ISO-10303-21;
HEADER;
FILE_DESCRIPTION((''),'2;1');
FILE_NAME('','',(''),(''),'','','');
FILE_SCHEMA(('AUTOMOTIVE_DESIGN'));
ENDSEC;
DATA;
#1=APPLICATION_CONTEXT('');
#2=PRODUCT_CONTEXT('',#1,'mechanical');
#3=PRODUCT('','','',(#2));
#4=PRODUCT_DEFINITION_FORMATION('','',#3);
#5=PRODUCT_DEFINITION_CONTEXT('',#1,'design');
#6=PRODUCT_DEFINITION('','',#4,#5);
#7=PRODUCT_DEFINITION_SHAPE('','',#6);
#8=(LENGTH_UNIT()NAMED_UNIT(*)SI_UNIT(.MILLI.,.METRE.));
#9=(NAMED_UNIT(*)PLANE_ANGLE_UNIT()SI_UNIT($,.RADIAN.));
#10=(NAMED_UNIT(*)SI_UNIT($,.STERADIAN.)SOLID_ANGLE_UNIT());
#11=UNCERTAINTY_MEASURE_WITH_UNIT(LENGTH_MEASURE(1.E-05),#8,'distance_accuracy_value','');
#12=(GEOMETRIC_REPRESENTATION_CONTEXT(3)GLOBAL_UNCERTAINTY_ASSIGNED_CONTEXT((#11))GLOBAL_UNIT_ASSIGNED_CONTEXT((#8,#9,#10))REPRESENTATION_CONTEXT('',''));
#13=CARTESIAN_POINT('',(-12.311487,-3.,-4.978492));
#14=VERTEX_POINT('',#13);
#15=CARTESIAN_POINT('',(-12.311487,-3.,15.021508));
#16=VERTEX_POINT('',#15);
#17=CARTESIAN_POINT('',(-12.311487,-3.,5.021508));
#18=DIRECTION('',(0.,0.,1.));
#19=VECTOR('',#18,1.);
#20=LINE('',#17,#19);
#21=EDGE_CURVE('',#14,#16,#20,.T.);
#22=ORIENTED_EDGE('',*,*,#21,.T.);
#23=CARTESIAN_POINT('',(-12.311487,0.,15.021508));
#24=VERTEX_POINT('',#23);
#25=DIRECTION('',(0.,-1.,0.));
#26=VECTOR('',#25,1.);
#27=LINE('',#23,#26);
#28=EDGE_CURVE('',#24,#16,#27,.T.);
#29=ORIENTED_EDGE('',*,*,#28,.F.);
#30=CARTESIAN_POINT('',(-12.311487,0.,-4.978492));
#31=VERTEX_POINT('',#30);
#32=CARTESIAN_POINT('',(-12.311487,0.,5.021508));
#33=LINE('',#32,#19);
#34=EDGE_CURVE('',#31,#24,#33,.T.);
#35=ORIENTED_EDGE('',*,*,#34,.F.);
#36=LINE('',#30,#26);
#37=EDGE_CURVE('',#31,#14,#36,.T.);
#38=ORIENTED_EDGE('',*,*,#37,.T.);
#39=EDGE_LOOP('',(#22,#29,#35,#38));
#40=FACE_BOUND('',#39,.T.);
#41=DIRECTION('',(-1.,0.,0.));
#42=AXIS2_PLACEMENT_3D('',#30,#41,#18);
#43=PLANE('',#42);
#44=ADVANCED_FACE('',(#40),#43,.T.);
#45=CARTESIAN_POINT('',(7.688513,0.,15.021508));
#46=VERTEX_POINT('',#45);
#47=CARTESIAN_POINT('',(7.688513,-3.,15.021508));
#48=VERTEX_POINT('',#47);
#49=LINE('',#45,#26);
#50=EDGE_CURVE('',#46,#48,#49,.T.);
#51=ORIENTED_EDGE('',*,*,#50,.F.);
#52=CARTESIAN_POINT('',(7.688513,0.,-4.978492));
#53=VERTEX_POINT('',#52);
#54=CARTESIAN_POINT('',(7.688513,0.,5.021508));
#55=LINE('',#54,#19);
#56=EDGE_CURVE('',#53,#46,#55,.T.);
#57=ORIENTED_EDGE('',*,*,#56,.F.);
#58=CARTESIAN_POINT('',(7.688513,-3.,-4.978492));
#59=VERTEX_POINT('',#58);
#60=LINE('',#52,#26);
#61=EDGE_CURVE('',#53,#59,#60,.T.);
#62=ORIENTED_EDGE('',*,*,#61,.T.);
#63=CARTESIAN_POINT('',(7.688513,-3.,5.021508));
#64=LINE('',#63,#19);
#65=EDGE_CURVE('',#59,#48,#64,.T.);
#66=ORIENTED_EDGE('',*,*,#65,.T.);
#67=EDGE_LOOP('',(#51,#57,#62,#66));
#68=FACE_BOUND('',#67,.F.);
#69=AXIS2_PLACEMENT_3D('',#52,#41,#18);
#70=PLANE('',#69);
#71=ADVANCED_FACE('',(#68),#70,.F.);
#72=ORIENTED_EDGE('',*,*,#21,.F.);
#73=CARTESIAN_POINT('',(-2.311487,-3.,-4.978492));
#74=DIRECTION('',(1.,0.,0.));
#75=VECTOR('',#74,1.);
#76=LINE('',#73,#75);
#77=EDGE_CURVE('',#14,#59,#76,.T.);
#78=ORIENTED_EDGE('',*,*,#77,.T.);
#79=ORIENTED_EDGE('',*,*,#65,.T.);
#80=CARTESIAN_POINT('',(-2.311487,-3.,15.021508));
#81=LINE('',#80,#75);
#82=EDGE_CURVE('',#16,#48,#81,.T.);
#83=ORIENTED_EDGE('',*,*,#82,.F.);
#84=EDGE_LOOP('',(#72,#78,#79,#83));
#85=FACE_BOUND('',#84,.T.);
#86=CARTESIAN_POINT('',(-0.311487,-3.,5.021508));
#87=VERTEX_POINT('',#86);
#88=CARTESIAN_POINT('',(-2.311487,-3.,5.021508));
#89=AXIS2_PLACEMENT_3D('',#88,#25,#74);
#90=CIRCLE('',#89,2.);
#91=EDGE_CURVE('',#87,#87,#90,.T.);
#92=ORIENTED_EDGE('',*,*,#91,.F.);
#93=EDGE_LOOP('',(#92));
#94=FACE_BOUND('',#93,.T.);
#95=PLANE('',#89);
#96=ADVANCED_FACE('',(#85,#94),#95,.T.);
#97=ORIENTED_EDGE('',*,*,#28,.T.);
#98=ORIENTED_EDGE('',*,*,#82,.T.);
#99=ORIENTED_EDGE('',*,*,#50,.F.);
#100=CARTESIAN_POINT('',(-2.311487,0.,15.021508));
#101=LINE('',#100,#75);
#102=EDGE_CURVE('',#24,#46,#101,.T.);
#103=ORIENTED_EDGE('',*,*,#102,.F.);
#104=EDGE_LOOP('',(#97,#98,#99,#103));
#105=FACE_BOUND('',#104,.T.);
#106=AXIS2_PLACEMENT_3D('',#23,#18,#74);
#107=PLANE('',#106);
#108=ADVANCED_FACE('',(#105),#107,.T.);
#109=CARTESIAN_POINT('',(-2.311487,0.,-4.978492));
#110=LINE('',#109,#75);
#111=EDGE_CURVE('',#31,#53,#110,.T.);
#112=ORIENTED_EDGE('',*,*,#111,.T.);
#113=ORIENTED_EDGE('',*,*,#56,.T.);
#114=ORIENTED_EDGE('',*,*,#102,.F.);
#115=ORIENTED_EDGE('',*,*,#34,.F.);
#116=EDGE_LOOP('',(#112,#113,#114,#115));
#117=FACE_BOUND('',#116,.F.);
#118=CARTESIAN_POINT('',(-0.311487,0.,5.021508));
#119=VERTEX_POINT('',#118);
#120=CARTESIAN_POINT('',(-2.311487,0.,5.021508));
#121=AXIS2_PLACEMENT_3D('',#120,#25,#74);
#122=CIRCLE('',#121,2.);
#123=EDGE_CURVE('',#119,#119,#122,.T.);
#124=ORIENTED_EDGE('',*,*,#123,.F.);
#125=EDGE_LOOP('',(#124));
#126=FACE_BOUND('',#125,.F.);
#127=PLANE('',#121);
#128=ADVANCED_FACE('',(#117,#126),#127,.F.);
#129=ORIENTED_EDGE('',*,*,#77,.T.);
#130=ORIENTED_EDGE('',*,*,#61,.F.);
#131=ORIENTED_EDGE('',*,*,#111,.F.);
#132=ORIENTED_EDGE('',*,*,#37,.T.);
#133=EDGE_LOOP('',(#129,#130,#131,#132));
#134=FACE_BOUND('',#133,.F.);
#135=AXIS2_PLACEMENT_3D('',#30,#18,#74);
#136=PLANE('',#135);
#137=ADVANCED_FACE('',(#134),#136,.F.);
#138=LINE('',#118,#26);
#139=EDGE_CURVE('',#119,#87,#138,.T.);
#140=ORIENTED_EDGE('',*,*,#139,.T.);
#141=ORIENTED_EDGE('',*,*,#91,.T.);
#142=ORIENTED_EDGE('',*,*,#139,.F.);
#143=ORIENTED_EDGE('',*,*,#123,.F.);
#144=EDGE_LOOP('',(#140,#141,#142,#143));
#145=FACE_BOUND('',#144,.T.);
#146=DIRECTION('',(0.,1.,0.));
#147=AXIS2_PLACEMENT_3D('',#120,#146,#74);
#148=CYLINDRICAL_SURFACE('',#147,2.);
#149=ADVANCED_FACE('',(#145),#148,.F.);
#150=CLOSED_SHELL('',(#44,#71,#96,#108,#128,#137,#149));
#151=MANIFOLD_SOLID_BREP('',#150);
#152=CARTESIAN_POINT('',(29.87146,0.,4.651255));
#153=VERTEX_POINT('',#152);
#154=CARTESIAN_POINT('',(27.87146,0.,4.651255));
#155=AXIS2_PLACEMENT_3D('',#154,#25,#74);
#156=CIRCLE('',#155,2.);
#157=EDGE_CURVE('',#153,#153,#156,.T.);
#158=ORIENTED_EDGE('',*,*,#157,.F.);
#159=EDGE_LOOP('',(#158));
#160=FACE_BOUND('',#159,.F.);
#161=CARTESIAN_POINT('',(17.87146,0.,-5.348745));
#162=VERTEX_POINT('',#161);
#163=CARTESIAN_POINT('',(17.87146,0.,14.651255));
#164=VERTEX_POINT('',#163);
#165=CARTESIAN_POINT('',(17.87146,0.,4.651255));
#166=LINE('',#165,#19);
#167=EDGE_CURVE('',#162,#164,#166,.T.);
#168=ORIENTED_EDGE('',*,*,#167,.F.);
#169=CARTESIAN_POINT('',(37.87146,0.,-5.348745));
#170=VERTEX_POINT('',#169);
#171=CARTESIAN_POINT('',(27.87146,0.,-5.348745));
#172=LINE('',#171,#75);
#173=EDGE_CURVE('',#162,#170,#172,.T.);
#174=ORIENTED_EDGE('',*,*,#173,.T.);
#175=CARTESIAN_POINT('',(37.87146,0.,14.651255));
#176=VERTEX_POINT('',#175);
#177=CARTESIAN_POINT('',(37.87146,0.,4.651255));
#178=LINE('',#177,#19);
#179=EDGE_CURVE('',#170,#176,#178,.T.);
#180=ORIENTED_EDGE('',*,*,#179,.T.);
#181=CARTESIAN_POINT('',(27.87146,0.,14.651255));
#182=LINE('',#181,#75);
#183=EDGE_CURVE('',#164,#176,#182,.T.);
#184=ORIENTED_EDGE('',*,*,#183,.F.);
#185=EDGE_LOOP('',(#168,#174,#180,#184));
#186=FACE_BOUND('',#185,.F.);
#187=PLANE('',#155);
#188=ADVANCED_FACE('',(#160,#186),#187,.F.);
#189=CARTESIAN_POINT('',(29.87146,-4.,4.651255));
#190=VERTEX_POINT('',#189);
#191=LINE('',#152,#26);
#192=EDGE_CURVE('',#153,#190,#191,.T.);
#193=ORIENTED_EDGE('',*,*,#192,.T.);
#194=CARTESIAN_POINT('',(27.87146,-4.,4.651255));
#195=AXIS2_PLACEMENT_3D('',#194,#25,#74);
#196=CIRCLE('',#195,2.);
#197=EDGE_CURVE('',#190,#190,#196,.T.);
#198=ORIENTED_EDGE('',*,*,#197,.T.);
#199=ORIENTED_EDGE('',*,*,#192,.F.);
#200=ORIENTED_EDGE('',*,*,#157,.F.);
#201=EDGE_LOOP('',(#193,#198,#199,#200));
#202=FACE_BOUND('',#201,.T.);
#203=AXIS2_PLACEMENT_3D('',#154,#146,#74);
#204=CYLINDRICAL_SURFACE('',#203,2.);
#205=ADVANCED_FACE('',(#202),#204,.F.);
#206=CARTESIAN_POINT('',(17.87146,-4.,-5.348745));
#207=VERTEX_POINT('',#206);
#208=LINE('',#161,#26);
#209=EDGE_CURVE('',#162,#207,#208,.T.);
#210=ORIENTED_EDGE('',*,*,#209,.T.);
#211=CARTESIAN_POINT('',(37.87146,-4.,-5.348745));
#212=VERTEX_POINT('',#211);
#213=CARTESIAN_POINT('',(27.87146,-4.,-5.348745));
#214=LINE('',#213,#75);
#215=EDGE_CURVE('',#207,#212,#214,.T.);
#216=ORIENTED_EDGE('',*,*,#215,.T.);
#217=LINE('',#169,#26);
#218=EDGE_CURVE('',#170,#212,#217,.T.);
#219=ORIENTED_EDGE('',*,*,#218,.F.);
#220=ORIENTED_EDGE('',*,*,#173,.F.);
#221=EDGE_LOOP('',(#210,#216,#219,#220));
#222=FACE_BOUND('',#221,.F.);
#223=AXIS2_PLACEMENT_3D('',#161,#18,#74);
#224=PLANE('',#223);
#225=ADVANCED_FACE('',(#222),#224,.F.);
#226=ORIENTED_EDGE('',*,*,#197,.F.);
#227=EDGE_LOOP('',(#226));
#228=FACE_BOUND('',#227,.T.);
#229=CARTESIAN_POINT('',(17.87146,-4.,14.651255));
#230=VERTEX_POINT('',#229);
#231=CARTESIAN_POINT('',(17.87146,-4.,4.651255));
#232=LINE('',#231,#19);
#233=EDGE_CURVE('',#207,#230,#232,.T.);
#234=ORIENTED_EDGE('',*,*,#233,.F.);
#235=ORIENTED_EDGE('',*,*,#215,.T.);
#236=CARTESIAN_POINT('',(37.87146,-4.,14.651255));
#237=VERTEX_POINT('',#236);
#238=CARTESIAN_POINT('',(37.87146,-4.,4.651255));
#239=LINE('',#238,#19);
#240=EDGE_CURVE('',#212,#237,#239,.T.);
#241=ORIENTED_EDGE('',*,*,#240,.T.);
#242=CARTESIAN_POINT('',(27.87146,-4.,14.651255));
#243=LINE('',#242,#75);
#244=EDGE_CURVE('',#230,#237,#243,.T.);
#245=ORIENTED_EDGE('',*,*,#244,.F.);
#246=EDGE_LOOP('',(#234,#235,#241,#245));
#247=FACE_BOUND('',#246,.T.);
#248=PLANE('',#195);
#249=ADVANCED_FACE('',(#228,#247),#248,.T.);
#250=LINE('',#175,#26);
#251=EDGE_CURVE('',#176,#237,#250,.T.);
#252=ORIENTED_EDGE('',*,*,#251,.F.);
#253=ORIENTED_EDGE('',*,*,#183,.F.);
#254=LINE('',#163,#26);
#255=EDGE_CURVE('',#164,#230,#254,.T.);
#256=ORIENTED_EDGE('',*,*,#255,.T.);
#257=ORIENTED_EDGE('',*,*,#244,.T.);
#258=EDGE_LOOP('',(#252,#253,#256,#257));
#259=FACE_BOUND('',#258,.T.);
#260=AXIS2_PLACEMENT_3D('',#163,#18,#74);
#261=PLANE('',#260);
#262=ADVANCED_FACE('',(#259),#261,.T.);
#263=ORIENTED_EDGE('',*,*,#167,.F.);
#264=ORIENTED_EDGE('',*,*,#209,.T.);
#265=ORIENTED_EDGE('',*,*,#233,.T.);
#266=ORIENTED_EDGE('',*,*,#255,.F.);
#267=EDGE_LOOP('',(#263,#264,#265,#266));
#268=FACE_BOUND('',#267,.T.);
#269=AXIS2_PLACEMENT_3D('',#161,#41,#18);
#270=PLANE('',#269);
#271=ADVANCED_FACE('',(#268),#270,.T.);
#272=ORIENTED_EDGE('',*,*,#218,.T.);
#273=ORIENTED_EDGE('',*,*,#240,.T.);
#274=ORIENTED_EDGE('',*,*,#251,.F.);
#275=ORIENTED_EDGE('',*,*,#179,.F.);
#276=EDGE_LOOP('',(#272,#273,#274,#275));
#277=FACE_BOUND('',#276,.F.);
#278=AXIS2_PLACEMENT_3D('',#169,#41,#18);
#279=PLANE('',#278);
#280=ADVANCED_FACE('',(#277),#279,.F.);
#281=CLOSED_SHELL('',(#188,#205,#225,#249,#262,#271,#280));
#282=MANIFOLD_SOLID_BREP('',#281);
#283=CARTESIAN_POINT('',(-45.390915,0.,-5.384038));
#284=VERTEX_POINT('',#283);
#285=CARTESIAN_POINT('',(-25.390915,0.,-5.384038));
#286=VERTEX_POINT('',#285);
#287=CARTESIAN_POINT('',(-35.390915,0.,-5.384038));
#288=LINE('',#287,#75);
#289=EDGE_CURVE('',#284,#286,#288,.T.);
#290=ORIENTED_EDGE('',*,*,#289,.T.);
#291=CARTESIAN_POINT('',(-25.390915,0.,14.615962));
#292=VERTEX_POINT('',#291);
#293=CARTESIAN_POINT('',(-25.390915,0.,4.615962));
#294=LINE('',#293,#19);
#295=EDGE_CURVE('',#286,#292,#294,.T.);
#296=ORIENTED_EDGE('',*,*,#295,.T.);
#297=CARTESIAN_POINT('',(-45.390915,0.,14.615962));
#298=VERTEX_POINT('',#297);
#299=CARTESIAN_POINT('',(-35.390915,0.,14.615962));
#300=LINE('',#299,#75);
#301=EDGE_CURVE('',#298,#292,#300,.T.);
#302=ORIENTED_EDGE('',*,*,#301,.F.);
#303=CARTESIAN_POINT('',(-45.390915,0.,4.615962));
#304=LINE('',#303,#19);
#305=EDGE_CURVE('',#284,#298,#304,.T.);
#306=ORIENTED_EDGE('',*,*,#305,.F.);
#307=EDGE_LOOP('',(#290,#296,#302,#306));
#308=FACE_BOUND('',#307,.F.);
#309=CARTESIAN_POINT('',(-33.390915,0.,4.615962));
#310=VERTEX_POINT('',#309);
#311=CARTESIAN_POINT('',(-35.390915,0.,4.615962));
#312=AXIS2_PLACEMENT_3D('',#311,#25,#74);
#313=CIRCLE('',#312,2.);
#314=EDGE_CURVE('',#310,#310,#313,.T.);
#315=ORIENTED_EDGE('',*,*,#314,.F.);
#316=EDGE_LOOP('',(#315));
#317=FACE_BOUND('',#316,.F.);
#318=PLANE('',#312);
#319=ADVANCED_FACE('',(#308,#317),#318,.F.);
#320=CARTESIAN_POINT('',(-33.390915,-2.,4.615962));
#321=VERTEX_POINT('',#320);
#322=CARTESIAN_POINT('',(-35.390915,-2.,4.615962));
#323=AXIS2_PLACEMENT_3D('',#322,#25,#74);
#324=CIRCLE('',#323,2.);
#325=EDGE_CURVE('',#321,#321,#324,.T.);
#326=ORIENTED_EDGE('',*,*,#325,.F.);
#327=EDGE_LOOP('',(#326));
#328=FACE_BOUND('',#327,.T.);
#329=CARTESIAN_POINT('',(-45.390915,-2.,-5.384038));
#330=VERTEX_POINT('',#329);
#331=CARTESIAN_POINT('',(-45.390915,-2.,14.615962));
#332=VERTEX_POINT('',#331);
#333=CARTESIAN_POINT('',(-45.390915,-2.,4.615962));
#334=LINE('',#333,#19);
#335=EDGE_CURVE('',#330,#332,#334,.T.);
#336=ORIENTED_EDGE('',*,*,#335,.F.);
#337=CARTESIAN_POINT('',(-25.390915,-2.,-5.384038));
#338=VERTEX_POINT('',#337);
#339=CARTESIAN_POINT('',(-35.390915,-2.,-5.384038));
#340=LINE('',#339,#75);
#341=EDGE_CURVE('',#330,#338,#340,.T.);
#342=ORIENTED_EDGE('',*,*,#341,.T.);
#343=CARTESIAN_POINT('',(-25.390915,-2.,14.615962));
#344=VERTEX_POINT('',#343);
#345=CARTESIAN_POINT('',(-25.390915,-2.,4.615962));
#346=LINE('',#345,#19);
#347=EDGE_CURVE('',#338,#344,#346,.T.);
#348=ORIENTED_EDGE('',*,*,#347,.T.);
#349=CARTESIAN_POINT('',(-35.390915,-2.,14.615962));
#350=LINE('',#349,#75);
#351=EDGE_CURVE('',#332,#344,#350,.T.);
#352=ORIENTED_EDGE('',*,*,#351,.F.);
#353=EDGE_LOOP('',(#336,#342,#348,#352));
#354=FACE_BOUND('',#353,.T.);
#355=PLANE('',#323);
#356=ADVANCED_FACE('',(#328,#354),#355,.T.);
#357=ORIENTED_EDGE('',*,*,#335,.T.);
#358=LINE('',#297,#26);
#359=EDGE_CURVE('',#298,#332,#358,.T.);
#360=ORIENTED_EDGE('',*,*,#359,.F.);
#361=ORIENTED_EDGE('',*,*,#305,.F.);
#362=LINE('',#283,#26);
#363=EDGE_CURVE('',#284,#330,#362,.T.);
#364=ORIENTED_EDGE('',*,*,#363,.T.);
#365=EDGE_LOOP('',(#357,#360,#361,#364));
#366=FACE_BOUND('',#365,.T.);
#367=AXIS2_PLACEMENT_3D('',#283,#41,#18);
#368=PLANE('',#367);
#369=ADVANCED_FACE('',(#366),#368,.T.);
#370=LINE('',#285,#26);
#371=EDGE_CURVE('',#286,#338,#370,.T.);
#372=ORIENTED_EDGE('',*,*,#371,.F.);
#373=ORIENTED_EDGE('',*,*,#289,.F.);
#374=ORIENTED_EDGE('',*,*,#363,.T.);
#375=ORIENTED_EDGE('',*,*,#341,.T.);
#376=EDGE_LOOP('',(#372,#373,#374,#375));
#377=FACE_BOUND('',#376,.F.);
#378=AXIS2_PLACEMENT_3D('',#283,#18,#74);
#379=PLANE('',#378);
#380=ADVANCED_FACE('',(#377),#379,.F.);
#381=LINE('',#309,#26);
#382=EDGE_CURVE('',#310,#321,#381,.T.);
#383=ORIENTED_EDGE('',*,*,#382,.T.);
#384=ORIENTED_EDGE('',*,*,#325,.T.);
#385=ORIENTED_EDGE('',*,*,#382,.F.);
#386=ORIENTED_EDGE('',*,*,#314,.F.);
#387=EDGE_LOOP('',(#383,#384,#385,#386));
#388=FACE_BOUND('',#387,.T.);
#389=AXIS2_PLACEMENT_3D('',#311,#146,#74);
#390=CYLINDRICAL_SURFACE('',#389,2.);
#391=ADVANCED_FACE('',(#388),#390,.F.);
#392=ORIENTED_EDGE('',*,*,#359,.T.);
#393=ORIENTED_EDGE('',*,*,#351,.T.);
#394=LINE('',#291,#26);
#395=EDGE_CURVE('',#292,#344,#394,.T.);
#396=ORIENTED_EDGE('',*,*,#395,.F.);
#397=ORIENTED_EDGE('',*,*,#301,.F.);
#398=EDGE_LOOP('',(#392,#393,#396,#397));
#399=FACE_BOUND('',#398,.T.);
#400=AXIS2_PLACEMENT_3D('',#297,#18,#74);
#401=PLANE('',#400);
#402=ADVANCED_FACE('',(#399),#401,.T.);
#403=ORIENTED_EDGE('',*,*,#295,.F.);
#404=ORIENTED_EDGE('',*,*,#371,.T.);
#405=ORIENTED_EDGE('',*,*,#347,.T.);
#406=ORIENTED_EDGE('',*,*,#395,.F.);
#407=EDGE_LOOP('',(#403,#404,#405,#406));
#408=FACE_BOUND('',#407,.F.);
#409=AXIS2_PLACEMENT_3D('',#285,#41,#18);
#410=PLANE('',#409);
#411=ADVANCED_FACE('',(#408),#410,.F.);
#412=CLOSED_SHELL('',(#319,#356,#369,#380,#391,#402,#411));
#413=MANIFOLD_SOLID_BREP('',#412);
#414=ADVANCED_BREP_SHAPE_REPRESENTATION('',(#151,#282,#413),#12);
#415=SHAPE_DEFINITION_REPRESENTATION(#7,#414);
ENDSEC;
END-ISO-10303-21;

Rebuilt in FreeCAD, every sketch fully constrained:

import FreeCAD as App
import Part
import Sketcher

V = App.Vector

doc = App.newDocument("Part")
body = doc.addObject("PartDesign::Body", "Body")

# Sketch on XZ plane
sketch1 = doc.addObject("Sketcher::SketchObject", "Sketch")
body.addObject(sketch1)
sketch1.AttachmentSupport = (doc.XZ_Plane, [""])
sketch1.MapMode = "FlatFace"
sketch1.addGeometry(Part.LineSegment(V(-45.4, 14.6, 0), V(-45.4, -5.4, 0)), False)
sketch1.addGeometry(Part.LineSegment(V(-45.4, -5.4, 0), V(-25.4, -5.4, 0)), False)
sketch1.addGeometry(Part.LineSegment(V(-25.4, -5.4, 0), V(-25.4, 14.6, 0)), False)
sketch1.addGeometry(Part.LineSegment(V(-25.4, 14.6, 0), V(-45.4, 14.6, 0)), False)
sketch1.addGeometry(Part.Circle(V(-35.4, 4.6, 0), V(0, 0, 1), 2), False)
sketch1.addConstraint(Sketcher.Constraint("Coincident", 0, 2, 1, 1))
sketch1.addConstraint(Sketcher.Constraint("Coincident", 1, 2, 2, 1))
sketch1.addConstraint(Sketcher.Constraint("Coincident", 2, 2, 3, 1))
sketch1.addConstraint(Sketcher.Constraint("Coincident", 3, 2, 0, 1))
sketch1.addConstraint(Sketcher.Constraint("Vertical", 0))
sketch1.addConstraint(Sketcher.Constraint("Horizontal", 1))
sketch1.addConstraint(Sketcher.Constraint("Vertical", 2))
sketch1.addConstraint(Sketcher.Constraint("Horizontal", 3))
sketch1.addConstraint(Sketcher.Constraint("Equal", 3, 0))
sketch1.addConstraint(Sketcher.Constraint("Diameter", 4, 4.0))
sketch1.addConstraint(Sketcher.Constraint("DistanceX", 1, 1, 1, 2, 20.0))
sketch1.addConstraint(Sketcher.Constraint("DistanceX", 0, 2, 4, 3, 10.0))
sketch1.addConstraint(Sketcher.Constraint("DistanceY", 0, 2, 4, 3, 10.0))
sketch1.addConstraint(Sketcher.Constraint("DistanceY", -1, 1, 4, 3, 4.615962))
sketch1.addConstraint(Sketcher.Constraint("DistanceX", 4, 3, -1, 1, 35.390915))
pad1 = doc.addObject("PartDesign::Pad", "Pad")
body.addObject(pad1)
pad1.Profile = sketch1
pad1.Length = 2
body2 = doc.addObject("PartDesign::Body", "Body001")

# Sketch on XZ plane
sketch2 = doc.addObject("Sketcher::SketchObject", "Sketch001")
body2.addObject(sketch2)
sketch2.AttachmentSupport = (doc.getObject("XZ_Plane001"), [""])
sketch2.MapMode = "FlatFace"
sketch2.addGeometry(Part.LineSegment(V(-12.3, 15, 0), V(-12.3, -5, 0)), False)
sketch2.addGeometry(Part.LineSegment(V(-12.3, -5, 0), V(7.7, -5, 0)), False)
sketch2.addGeometry(Part.LineSegment(V(7.7, -5, 0), V(7.7, 15, 0)), False)
sketch2.addGeometry(Part.LineSegment(V(7.7, 15, 0), V(-12.3, 15, 0)), False)
sketch2.addGeometry(Part.Circle(V(-2.3, 5, 0), V(0, 0, 1), 2), False)
sketch2.addConstraint(Sketcher.Constraint("Coincident", 0, 2, 1, 1))
sketch2.addConstraint(Sketcher.Constraint("Coincident", 1, 2, 2, 1))
sketch2.addConstraint(Sketcher.Constraint("Coincident", 2, 2, 3, 1))
sketch2.addConstraint(Sketcher.Constraint("Coincident", 3, 2, 0, 1))
sketch2.addConstraint(Sketcher.Constraint("Vertical", 0))
sketch2.addConstraint(Sketcher.Constraint("Horizontal", 1))
sketch2.addConstraint(Sketcher.Constraint("Vertical", 2))
sketch2.addConstraint(Sketcher.Constraint("Horizontal", 3))
sketch2.addConstraint(Sketcher.Constraint("Equal", 3, 0))
sketch2.addConstraint(Sketcher.Constraint("Diameter", 4, 4.0))
sketch2.addConstraint(Sketcher.Constraint("DistanceX", 1, 1, 1, 2, 20.0))
sketch2.addConstraint(Sketcher.Constraint("DistanceX", 0, 2, 4, 3, 10.0))
sketch2.addConstraint(Sketcher.Constraint("DistanceY", 0, 2, 4, 3, 10.0))
sketch2.addConstraint(Sketcher.Constraint("DistanceY", -1, 1, 2, 2, 15.021508))
sketch2.addConstraint(Sketcher.Constraint("DistanceX", 4, 3, -1, 1, 2.311487))
pad2 = doc.addObject("PartDesign::Pad", "Pad001")
body2.addObject(pad2)
pad2.Profile = sketch2
pad2.Length = 3
body3 = doc.addObject("PartDesign::Body", "Body002")

# Sketch on XZ plane
sketch3 = doc.addObject("Sketcher::SketchObject", "Sketch002")
body3.addObject(sketch3)
sketch3.AttachmentSupport = (doc.getObject("XZ_Plane002"), [""])
sketch3.MapMode = "FlatFace"
sketch3.addGeometry(Part.LineSegment(V(17.9, 14.7, 0), V(17.9, -5.3, 0)), False)
sketch3.addGeometry(Part.LineSegment(V(17.9, -5.3, 0), V(37.9, -5.3, 0)), False)
sketch3.addGeometry(Part.LineSegment(V(37.9, -5.3, 0), V(37.9, 14.7, 0)), False)
sketch3.addGeometry(Part.LineSegment(V(37.9, 14.7, 0), V(17.9, 14.7, 0)), False)
sketch3.addGeometry(Part.Circle(V(27.9, 4.7, 0), V(0, 0, 1), 2), False)
sketch3.addConstraint(Sketcher.Constraint("Coincident", 0, 2, 1, 1))
sketch3.addConstraint(Sketcher.Constraint("Coincident", 1, 2, 2, 1))
sketch3.addConstraint(Sketcher.Constraint("Coincident", 2, 2, 3, 1))
sketch3.addConstraint(Sketcher.Constraint("Coincident", 3, 2, 0, 1))
sketch3.addConstraint(Sketcher.Constraint("Vertical", 0))
sketch3.addConstraint(Sketcher.Constraint("Horizontal", 1))
sketch3.addConstraint(Sketcher.Constraint("Vertical", 2))
sketch3.addConstraint(Sketcher.Constraint("Horizontal", 3))
sketch3.addConstraint(Sketcher.Constraint("Equal", 3, 0))
sketch3.addConstraint(Sketcher.Constraint("Diameter", 4, 4.0))
sketch3.addConstraint(Sketcher.Constraint("DistanceX", 1, 1, 1, 2, 20.0))
sketch3.addConstraint(Sketcher.Constraint("DistanceX", 0, 2, 4, 3, 10.0))
sketch3.addConstraint(Sketcher.Constraint("DistanceY", 0, 2, 4, 3, 10.0))
sketch3.addConstraint(Sketcher.Constraint("DistanceX", -1, 1, 4, 3, 27.87146))
sketch3.addConstraint(Sketcher.Constraint("DistanceY", -1, 1, 4, 3, 4.651255))
pad3 = doc.addObject("PartDesign::Pad", "Pad002")
body3.addObject(pad3)
pad3.Profile = sketch3
pad3.Length = 4

doc.recompute()
